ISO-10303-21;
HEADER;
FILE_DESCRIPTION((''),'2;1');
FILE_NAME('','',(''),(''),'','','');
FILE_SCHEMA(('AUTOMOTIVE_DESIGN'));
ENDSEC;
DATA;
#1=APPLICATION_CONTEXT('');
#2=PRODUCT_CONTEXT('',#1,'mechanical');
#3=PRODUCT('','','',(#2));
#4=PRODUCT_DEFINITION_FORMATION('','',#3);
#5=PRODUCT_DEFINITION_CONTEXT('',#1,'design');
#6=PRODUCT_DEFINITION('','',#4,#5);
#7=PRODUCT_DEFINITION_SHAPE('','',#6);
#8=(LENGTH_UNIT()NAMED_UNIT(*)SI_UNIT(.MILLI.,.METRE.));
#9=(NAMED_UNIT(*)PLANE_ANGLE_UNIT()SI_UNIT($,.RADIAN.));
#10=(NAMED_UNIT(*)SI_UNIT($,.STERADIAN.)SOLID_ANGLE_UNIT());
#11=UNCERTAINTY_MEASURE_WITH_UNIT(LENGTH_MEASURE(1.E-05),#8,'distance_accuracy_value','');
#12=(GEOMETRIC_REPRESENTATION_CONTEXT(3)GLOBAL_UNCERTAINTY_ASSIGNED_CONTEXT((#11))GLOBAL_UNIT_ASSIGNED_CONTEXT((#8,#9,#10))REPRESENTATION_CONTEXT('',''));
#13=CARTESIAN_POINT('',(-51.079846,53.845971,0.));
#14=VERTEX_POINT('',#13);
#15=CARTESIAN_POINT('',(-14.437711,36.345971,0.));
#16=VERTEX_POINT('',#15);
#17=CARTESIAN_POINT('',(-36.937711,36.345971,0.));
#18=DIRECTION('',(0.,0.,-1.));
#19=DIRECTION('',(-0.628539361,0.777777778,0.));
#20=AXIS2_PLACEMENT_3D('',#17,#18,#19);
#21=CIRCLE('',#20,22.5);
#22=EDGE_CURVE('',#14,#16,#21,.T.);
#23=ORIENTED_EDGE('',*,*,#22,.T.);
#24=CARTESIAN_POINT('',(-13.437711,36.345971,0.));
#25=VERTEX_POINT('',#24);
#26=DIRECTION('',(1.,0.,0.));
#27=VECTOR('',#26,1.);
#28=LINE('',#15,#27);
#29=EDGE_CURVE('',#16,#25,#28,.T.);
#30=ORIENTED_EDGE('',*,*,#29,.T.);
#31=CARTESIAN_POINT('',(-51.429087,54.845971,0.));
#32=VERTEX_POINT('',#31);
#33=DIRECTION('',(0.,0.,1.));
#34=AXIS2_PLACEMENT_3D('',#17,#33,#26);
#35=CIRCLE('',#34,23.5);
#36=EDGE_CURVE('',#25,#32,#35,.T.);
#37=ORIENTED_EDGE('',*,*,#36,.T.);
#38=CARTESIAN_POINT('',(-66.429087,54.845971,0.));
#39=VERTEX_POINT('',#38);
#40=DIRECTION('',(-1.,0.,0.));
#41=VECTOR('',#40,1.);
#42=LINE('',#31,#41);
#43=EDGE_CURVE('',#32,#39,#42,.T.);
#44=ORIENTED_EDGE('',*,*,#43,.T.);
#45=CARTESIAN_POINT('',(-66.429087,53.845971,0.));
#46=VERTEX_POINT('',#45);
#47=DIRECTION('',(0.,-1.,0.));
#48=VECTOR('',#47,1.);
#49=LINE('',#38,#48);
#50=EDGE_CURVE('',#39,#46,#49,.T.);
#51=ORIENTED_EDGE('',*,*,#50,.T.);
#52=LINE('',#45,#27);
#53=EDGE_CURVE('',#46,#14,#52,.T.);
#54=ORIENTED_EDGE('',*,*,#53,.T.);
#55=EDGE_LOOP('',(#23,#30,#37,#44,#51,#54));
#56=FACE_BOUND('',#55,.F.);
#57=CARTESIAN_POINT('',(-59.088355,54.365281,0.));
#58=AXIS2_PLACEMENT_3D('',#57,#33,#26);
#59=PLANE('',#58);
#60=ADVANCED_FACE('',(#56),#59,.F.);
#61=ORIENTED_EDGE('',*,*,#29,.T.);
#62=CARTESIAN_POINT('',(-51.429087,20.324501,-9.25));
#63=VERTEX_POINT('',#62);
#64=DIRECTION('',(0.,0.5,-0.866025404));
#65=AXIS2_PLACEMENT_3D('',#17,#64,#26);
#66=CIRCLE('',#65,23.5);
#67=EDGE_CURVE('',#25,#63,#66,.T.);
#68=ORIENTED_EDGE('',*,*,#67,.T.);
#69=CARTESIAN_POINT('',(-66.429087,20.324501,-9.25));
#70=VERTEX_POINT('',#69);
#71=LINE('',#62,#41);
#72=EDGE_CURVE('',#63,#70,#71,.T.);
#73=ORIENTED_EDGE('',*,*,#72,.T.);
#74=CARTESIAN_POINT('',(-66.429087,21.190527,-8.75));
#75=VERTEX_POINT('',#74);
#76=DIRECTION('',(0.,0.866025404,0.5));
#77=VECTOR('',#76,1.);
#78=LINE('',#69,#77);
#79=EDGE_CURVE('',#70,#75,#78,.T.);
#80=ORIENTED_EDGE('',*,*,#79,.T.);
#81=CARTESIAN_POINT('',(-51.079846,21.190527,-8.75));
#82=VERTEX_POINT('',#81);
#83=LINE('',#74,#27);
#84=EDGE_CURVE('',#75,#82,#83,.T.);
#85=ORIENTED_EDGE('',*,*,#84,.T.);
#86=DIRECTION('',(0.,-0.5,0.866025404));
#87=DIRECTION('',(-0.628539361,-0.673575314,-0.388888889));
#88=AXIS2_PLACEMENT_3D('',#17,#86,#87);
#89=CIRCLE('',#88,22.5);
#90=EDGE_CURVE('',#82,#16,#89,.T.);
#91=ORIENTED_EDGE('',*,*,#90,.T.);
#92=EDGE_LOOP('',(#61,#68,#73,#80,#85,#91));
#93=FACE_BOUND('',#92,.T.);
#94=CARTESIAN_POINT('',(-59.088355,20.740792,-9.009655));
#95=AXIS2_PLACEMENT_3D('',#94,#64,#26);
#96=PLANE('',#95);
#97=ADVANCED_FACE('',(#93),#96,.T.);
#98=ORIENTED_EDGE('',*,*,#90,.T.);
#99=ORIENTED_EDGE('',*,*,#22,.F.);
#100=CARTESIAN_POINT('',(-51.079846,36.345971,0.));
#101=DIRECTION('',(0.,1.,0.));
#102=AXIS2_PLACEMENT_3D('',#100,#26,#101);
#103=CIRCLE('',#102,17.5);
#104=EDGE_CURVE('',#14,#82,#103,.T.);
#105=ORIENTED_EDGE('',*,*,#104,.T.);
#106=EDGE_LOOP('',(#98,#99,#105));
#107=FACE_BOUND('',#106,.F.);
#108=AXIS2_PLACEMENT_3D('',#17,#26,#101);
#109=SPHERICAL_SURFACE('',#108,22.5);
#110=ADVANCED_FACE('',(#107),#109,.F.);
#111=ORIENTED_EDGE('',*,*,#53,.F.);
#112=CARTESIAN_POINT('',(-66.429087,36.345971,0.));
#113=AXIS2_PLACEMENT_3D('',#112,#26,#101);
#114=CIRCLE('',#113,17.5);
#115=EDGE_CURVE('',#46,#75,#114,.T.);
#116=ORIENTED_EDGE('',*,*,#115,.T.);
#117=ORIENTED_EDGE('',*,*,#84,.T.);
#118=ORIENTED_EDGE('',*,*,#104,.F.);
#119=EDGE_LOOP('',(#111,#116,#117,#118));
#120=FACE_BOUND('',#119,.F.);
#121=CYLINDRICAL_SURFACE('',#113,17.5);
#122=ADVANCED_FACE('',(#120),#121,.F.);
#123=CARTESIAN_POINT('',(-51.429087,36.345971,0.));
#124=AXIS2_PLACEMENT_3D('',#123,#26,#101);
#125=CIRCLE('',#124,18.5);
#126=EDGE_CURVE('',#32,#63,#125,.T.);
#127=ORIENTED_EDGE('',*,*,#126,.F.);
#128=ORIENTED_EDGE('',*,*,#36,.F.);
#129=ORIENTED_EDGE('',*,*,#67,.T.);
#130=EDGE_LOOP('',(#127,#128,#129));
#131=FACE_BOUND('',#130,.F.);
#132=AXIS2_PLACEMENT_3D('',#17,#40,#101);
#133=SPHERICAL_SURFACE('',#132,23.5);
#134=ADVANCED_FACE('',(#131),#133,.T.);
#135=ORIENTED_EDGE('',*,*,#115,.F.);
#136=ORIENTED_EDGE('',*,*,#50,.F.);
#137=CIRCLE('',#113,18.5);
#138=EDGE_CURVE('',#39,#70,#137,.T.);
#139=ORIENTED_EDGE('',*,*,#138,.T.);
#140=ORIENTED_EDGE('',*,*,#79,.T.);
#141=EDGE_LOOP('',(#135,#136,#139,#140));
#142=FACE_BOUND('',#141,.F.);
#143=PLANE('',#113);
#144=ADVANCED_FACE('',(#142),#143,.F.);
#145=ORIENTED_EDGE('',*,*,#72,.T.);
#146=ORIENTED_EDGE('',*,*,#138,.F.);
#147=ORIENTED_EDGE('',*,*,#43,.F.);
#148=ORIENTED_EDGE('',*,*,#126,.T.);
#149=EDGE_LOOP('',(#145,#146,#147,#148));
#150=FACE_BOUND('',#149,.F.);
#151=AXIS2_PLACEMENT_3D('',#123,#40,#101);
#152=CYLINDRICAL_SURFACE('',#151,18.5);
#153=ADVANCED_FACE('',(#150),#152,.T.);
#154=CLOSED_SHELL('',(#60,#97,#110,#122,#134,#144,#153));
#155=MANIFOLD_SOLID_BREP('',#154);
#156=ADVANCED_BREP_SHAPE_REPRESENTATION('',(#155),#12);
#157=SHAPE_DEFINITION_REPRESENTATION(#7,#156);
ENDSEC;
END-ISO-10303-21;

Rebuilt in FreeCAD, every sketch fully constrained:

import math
import FreeCAD as App
import Part
import Sketcher

V = App.Vector

doc = App.newDocument("Part")
body = doc.addObject("PartDesign::Body", "Body")

# Sketch on XY plane
sketch1 = body.newObject("Sketcher::SketchObject", "Sketch")
sketch1.AttachmentSupport = (doc.getObject("XY_Plane"), [""])
sketch1.MapMode = "FlatFace"
sketch1.addGeometry(Part.LineSegment(V(-51.4, 54.8, 0), V(-66.4, 54.8, 0)), False)
sketch1.addGeometry(Part.LineSegment(V(-66.4, 54.8, 0), V(-66.4, 53.8, 0)), False)
sketch1.addGeometry(Part.LineSegment(V(-66.4, 53.8, 0), V(-51.1, 53.8, 0)), False)
sketch1.addGeometry(Part.ArcOfCircle(Part.Circle(V(-36.9, 36.3, 0), V(0, 0, 1), 22.5), math.radians(0), math.radians(129)), False)
sketch1.addGeometry(Part.LineSegment(V(-14.4, 36.3, 0), V(-13.4, 36.3, 0)), False)
sketch1.addGeometry(Part.ArcOfCircle(Part.Circle(V(-36.9, 36.3, 0), V(0, 0, 1), 23.5), math.radians(0), math.radians(128)), False)
sketch1.addGeometry(Part.LineSegment(V(-66.4, 36.3, 0), V(-13.4, 36.3, 0)), True)  # axis
sketch1.addConstraint(Sketcher.Constraint("Coincident", 0, 2, 1, 1))
sketch1.addConstraint(Sketcher.Constraint("Coincident", 1, 2, 2, 1))
sketch1.addConstraint(Sketcher.Constraint("Coincident", 2, 2, 3, 2))
sketch1.addConstraint(Sketcher.Constraint("Coincident", 3, 1, 4, 1))
sketch1.addConstraint(Sketcher.Constraint("Coincident", 4, 2, 5, 1))
sketch1.addConstraint(Sketcher.Constraint("Coincident", 5, 2, 0, 1))
sketch1.addConstraint(Sketcher.Constraint("Horizontal", 0))
sketch1.addConstraint(Sketcher.Constraint("Vertical", 1))
sketch1.addConstraint(Sketcher.Constraint("Horizontal", 2))
sketch1.addConstraint(Sketcher.Constraint("Horizontal", 4))
sketch1.addConstraint(Sketcher.Constraint("Horizontal", 6))
sketch1.addConstraint(Sketcher.Constraint("Coincident", 5, 3, 3, 3))
sketch1.addConstraint(Sketcher.Constraint("Coincident", 6, 2, 4, 2))
sketch1.addConstraint(Sketcher.Constraint("Horizontal", 5, 3, 3, 1))
sketch1.addConstraint(Sketcher.Constraint("Vertical", 1, 2, 6, 1))
sketch1.addConstraint(Sketcher.Constraint("Equal", 4, 1))
sketch1.addConstraint(Sketcher.Constraint("Radius", 3, 22.5))
sketch1.addConstraint(Sketcher.Constraint("Radius", 5, 23.5))
sketch1.addConstraint(Sketcher.Constraint("DistanceX", 0, 2, 0, 1, 15.0))
sketch1.addConstraint(Sketcher.Constraint("DistanceY", 3, 3, 0, 2, 18.5))
sketch1.addConstraint(Sketcher.Constraint("DistanceX", 3, 3, -1, 1, 36.937711))
sketch1.addConstraint(Sketcher.Constraint("DistanceY", -1, 1, 3, 3, 36.345971))
revolution = body.newObject("PartDesign::Revolution", "Revolution")
revolution.Profile = sketch1
revolution.ReferenceAxis = (sketch1, ["Axis0"])
revolution.Angle = 210

doc.recompute()
